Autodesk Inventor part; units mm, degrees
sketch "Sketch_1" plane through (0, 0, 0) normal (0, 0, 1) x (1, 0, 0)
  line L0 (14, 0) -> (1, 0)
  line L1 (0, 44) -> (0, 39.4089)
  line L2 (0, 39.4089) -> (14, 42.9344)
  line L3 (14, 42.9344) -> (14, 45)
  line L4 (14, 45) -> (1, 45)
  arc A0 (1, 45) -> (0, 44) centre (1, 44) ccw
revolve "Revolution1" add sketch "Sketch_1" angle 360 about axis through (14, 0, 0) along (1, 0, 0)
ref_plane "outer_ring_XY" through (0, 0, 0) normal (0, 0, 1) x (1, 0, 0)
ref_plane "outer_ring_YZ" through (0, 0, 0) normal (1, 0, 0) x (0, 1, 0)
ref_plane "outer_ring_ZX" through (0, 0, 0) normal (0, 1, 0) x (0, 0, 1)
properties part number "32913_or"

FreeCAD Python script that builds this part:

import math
import FreeCAD as App
import Part
import Sketcher
Q = App.Units.Quantity

doc = App.newDocument("Part")
body = doc.addObject("PartDesign::Body", "Body")

# Sketch on XY plane
sketch1 = body.newObject("Sketcher::SketchObject", "Sketch")
sketch1.AttachmentSupport = (doc.getObject("XY_Plane"), [""])
sketch1.MapMode = "FlatFace"
sketch1.addGeometry([
    Part.ArcOfCircle(Part.Circle(App.Vector(1, 44, 0), App.Vector(0, 0, 1), 1), math.radians(90), math.radians(180)),  # 0
    Part.LineSegment(App.Vector(0, 44, 0), App.Vector(0, 39.4089, 0)),  # 1
    Part.LineSegment(App.Vector(0, 39.4089, 0), App.Vector(14, 42.9344, 0)),  # 2
    Part.LineSegment(App.Vector(14, 42.9344, 0), App.Vector(14, 45, 0)),  # 3
    Part.LineSegment(App.Vector(14, 45, 0), App.Vector(1, 45, 0)),  # 4
], False)
sketch1.addConstraint([
    Sketcher.Constraint("Tangent", 0, 2, 1, 1),
    Sketcher.Constraint("Coincident", 1, 2, 2, 1),
    Sketcher.Constraint("Coincident", 2, 2, 3, 1),
    Sketcher.Constraint("Coincident", 3, 2, 4, 1),
    Sketcher.Constraint("Tangent", 4, 2, 0, 1),
    Sketcher.Constraint("Vertical", 1),
    Sketcher.Constraint("Vertical", 3),
    Sketcher.Constraint("Horizontal", 4),
    Sketcher.Constraint("PointOnObject", 0, 2, -2),
    Sketcher.Constraint("Radius", 0, Q("1 mm")),
    Sketcher.Constraint("DistanceX", 4, 2, 4, 1, Q("13 mm")),
    Sketcher.Constraint("DistanceY", -1, 1, 0, 3, Q("44 mm")),
    Sketcher.Constraint("DistanceY", 1, 2, 1, 1, Q("4.591 mm")),
    Sketcher.Constraint("Distance", 2, Q("14.437 mm")),
])
revolution = body.newObject("PartDesign::Revolution", "Revolution")
revolution.Profile = sketch1
revolution.ReferenceAxis = (sketch1, ["H_Axis"])
revolution.Angle = 360

doc.recompute()
